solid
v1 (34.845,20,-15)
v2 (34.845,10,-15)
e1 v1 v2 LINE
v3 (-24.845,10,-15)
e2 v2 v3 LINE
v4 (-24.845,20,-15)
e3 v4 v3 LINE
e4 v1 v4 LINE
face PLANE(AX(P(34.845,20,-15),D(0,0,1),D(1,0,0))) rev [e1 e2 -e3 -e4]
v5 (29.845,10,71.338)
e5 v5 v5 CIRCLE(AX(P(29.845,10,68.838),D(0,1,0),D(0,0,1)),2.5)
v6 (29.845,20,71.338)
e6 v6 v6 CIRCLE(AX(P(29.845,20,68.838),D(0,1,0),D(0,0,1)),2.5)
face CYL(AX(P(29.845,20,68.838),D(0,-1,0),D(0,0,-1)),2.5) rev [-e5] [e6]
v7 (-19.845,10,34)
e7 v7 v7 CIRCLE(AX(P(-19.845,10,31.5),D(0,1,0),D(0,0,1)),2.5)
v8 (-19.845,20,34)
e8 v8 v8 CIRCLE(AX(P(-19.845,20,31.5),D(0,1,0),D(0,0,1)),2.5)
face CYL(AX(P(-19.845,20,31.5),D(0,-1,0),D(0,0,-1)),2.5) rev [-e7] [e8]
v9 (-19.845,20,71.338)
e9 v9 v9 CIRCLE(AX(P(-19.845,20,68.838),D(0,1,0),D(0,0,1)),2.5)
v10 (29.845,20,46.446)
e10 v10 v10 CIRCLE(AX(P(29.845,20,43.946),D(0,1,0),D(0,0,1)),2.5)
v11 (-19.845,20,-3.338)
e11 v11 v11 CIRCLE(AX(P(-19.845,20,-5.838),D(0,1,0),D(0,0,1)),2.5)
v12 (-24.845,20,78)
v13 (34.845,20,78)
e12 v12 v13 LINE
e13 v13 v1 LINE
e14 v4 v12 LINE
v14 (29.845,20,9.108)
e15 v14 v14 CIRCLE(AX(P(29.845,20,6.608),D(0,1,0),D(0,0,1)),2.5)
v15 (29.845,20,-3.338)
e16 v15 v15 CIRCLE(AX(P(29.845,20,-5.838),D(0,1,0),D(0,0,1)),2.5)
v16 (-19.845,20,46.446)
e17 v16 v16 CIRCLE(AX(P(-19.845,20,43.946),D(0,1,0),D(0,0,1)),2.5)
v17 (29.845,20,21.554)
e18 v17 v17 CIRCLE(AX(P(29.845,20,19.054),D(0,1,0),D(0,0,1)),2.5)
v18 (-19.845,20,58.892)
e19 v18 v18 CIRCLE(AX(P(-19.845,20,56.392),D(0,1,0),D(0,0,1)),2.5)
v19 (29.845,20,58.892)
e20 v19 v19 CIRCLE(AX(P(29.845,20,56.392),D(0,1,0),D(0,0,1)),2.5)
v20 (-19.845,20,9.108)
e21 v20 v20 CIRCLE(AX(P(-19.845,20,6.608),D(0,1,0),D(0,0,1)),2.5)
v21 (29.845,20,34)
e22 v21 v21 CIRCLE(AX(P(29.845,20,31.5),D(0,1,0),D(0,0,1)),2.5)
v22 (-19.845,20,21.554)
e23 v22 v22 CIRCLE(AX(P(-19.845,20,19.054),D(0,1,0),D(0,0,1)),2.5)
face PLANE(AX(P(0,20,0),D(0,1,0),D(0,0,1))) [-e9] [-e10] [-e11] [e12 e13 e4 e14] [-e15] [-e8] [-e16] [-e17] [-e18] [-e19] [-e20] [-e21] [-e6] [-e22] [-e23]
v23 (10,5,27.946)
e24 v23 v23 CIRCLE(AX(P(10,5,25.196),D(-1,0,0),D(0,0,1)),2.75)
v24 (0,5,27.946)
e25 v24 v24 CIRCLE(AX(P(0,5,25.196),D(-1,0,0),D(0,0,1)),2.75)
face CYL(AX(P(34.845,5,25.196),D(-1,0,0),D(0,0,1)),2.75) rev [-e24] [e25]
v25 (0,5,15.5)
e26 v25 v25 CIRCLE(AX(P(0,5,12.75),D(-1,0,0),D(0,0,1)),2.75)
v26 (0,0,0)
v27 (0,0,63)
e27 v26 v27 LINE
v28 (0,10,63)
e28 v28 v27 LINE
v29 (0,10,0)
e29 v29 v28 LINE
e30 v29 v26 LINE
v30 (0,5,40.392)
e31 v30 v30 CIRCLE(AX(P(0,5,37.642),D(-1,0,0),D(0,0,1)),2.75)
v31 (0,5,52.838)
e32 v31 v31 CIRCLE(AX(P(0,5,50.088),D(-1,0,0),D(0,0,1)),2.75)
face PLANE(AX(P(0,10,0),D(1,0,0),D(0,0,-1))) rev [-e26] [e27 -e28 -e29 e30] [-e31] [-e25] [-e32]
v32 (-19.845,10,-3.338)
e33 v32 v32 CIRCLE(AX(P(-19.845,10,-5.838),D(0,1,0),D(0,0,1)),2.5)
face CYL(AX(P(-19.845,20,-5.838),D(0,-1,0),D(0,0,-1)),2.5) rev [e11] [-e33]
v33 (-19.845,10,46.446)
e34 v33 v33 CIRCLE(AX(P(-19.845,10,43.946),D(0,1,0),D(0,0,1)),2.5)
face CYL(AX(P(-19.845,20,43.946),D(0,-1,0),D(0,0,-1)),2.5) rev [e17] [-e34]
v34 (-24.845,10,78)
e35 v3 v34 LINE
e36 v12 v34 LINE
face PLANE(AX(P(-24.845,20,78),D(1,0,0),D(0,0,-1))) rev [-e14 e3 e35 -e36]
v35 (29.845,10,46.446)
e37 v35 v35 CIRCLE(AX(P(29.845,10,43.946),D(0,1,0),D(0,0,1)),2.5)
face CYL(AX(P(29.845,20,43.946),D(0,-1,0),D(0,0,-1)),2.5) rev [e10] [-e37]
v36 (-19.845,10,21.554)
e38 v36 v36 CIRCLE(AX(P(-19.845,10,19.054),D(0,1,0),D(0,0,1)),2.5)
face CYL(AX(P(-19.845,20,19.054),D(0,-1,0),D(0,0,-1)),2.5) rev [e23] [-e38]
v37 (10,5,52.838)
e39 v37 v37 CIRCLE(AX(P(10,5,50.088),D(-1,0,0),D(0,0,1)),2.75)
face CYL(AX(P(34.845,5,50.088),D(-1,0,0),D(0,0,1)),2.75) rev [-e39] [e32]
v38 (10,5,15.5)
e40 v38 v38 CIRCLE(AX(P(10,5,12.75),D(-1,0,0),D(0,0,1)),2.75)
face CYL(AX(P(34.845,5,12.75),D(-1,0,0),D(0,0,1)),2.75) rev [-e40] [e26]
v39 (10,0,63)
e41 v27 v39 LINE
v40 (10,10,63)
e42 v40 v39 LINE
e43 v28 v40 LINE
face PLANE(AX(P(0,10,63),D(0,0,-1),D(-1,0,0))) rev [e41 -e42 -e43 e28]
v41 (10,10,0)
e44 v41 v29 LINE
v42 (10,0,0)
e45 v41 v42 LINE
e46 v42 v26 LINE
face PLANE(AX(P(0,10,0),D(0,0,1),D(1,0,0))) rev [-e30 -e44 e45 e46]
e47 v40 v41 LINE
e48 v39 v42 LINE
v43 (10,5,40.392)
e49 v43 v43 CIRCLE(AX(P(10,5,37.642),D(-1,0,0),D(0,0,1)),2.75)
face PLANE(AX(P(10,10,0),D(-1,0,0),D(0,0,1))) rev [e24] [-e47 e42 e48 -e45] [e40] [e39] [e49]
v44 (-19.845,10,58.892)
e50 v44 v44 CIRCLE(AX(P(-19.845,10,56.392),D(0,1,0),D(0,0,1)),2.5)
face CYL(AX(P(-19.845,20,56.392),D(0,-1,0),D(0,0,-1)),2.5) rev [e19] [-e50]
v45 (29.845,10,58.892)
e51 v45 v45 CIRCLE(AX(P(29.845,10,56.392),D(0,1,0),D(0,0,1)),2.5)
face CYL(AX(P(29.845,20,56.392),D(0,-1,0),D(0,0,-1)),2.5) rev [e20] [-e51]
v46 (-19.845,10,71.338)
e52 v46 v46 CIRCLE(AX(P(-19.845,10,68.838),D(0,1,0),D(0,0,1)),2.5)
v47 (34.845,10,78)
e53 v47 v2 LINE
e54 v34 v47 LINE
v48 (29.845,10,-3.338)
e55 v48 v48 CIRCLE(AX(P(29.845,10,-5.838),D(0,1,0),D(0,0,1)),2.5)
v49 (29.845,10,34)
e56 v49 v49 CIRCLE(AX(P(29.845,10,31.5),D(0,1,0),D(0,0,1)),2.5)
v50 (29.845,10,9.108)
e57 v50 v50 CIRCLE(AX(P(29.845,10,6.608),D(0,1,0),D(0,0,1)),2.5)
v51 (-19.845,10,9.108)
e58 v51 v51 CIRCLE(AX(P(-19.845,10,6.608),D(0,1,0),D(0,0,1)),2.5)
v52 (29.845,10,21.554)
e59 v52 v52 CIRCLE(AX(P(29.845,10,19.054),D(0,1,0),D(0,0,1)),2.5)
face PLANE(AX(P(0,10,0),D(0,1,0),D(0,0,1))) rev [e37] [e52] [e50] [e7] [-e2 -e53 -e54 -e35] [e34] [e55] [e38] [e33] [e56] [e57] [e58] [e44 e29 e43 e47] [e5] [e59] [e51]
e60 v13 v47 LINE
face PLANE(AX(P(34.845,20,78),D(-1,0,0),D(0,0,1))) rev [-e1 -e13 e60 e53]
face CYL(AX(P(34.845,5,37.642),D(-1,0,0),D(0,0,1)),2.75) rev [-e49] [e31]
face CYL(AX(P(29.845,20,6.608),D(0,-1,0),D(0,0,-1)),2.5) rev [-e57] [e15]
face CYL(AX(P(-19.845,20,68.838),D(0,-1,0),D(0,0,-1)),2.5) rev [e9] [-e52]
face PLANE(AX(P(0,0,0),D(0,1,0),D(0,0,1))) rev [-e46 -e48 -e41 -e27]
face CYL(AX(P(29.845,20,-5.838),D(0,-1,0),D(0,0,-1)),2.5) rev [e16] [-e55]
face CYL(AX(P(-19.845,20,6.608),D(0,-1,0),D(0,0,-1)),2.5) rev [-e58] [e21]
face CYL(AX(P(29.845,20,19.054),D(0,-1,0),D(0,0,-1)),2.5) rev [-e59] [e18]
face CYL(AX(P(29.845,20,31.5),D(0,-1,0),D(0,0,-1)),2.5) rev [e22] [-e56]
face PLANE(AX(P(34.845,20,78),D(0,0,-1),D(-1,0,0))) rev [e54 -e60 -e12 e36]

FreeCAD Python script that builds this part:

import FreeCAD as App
import Part
import Sketcher

V = App.Vector


def add_polygon(sketch, points):
    """Adds a closed chain of lines whose ends are joined by coincident constraints."""
    first, n = sketch.GeometryCount, len(points)
    for a, b in zip(points, points[1:] + points[:1]):
        sketch.addGeometry(Part.LineSegment(App.Vector(*a, 0), App.Vector(*b, 0)), False)
    for i in range(n):
        sketch.addConstraint(Sketcher.Constraint("Coincident", first + i, 2, first + (i + 1) % n, 1))

doc = App.newDocument("Part")
body = doc.addObject("PartDesign::Body", "Body")

# Sketch on XZ plane
sketch1 = body.newObject("Sketcher::SketchObject", "Sketch")
sketch1.AttachmentSupport = (doc.getObject("XZ_Plane"), [""])
sketch1.MapMode = "FlatFace"
add_polygon(sketch1, [(0, 0), (0, 63), (10, 63), (10, 0)])  # lines 0-3
sketch1.addConstraint([
    Sketcher.Constraint("Vertical", 0),
    Sketcher.Constraint("Horizontal", 1),
    Sketcher.Constraint("Vertical", 2),
    Sketcher.Constraint("Horizontal", 3),
    Sketcher.Constraint("Coincident", 3, 2, -1, 1),
    Sketcher.Constraint("DistanceX", 1, 1, 1, 2, 10.0),
    Sketcher.Constraint("DistanceY", 0, 1, 0, 2, 63.0),
])
pad1 = body.newObject("PartDesign::Pad", "Pad")
pad1.Profile = sketch1
pad1.Length = 10
pad1.Reversed = True

# Sketch on XZ plane
sketch2 = body.newObject("Sketcher::SketchObject", "Sketch001")
sketch2.AttachmentSupport = (doc.getObject("XZ_Plane"), [""])
sketch2.MapMode = "FlatFace"
sketch2.AttachmentOffset = App.Placement(V(0, 0, -10), App.Rotation())
add_polygon(sketch2, [(-24.8, -15), (-24.8, 78), (34.8, 78), (34.8, -15)])  # lines 0-3
sketch2.addGeometry(Part.Circle(V(-19.8, 68.8, 0), V(0, 0, 1), 2.5), False)  # 4
sketch2.addGeometry(Part.Circle(V(-19.8, 56.4, 0), V(0, 0, 1), 2.5), False)  # 5
sketch2.addGeometry(Part.Circle(V(-19.8, 43.9, 0), V(0, 0, 1), 2.5), False)  # 6
sketch2.addGeometry(Part.Circle(V(29.8, 68.8, 0), V(0, 0, 1), 2.5), False)  # 7
sketch2.addGeometry(Part.Circle(V(29.8, 56.4, 0), V(0, 0, 1), 2.5), False)  # 8
sketch2.addGeometry(Part.Circle(V(29.8, 43.9, 0), V(0, 0, 1), 2.5), False)  # 9
sketch2.addGeometry(Part.Circle(V(-19.8, 31.5, 0), V(0, 0, 1), 2.5), False)  # 10
sketch2.addGeometry(Part.Circle(V(-19.8, 19.1, 0), V(0, 0, 1), 2.5), False)  # 11
sketch2.addGeometry(Part.Circle(V(-19.8, 6.6, 0), V(0, 0, 1), 2.5), False)  # 12
sketch2.addGeometry(Part.Circle(V(-19.8, -5.8, 0), V(0, 0, 1), 2.5), False)  # 13
sketch2.addGeometry(Part.Circle(V(29.8, 31.5, 0), V(0, 0, 1), 2.5), False)  # 14
sketch2.addGeometry(Part.Circle(V(29.8, 19.1, 0), V(0, 0, 1), 2.5), False)  # 15
sketch2.addGeometry(Part.Circle(V(29.8, 6.6, 0), V(0, 0, 1), 2.5), False)  # 16
sketch2.addGeometry(Part.Circle(V(29.8, -5.8, 0), V(0, 0, 1), 2.5), False)  # 17
sketch2.addConstraint([
    Sketcher.Constraint("Vertical", 0),
    Sketcher.Constraint("Horizontal", 1),
    Sketcher.Constraint("Vertical", 2),
    Sketcher.Constraint("Horizontal", 3),
    Sketcher.Constraint("Equal", 4, 5),
    Sketcher.Constraint("Equal", 5, 6),
    Sketcher.Constraint("Equal", 6, 7),
    Sketcher.Constraint("Equal", 7, 8),
    Sketcher.Constraint("Equal", 8, 9),
    Sketcher.Constraint("Equal", 9, 10),
    Sketcher.Constraint("Equal", 10, 11),
    Sketcher.Constraint("Equal", 11, 12),
    Sketcher.Constraint("Equal", 12, 13),
    Sketcher.Constraint("Equal", 13, 14),
    Sketcher.Constraint("Equal", 14, 15),
    Sketcher.Constraint("Equal", 15, 16),
    Sketcher.Constraint("Equal", 16, 17),
    Sketcher.Constraint("Horizontal", 4, 3, 7, 3),
    Sketcher.Constraint("Horizontal", 5, 3, 8, 3),
    Sketcher.Constraint("Horizontal", 6, 3, 9, 3),
    Sketcher.Constraint("Horizontal", 10, 3, 14, 3),
    Sketcher.Constraint("Horizontal", 11, 3, 15, 3),
    Sketcher.Constraint("Horizontal", 12, 3, 16, 3),
    Sketcher.Constraint("Horizontal", 13, 3, 17, 3),
    Sketcher.Constraint("Vertical", 4, 3, 5, 3),
    Sketcher.Constraint("Vertical", 5, 3, 6, 3),
    Sketcher.Constraint("Vertical", 7, 3, 8, 3),
    Sketcher.Constraint("Vertical", 8, 3, 9, 3),
    Sketcher.Constraint("Vertical", 6, 3, 10, 3),
    Sketcher.Constraint("Vertical", 10, 3, 11, 3),
    Sketcher.Constraint("Vertical", 11, 3, 12, 3),
    Sketcher.Constraint("Vertical", 12, 3, 13, 3),
    Sketcher.Constraint("Vertical", 9, 3, 14, 3),
    Sketcher.Constraint("Vertical", 14, 3, 15, 3),
    Sketcher.Constraint("Vertical", 15, 3, 16, 3),
    Sketcher.Constraint("Vertical", 16, 3, 17, 3),
    Sketcher.Constraint("Diameter", 4, 5.0),
    Sketcher.Constraint("DistanceY", 0, 1, 0, 2, 93.0),
    Sketcher.Constraint("DistanceY", -1, 1, 0, 2, 78.0),
    Sketcher.Constraint("DistanceX", 0, 2, 4, 3, 5.0),
    Sketcher.Constraint("DistanceX", 7, 3, 1, 2, 5.0),
    Sketcher.Constraint("DistanceX", 1, 1, 1, 2, 59.69),
    Sketcher.Constraint("DistanceY", -1, 1, 10, 3, 31.5),
    Sketcher.Constraint("DistanceY", 13, 3, 5, 3, 62.23),
    Sketcher.Constraint("DistanceX", 4, 3, -1, 1, 19.845),
    Sketcher.Constraint("DistanceY", -1, 1, 4, 3, 68.838),
    Sketcher.Constraint("DistanceY", -1, 1, 5, 3, 56.392),
    Sketcher.Constraint("DistanceY", -1, 1, 6, 3, 43.946),
    Sketcher.Constraint("DistanceY", -1, 1, 11, 3, 19.054),
    Sketcher.Constraint("DistanceY", -1, 1, 12, 3, 6.608),
])
pad2 = body.newObject("PartDesign::Pad", "Pad001")
pad2.Profile = sketch2
pad2.Length = 10
pad2.Reversed = True

# Sketch on YZ plane
sketch3 = body.newObject("Sketcher::SketchObject", "Sketch002")
sketch3.AttachmentSupport = (doc.getObject("YZ_Plane"), [""])
sketch3.MapMode = "FlatFace"
sketch3.addGeometry([
    Part.Circle(V(5, 12.8, 0), V(0, 0, 1), 2.8),
    Part.Circle(V(5, 25.2, 0), V(0, 0, 1), 2.8),
    Part.Circle(V(5, 37.6, 0), V(0, 0, 1), 2.8),
    Part.Circle(V(5, 50.1, 0), V(0, 0, 1), 2.8),
], False)
sketch3.addConstraint([
    Sketcher.Constraint("Equal", 0, 1),
    Sketcher.Constraint("Equal", 1, 2),
    Sketcher.Constraint("Equal", 2, 3),
    Sketcher.Constraint("Vertical", 0, 3, 1, 3),
    Sketcher.Constraint("Vertical", 1, 3, 2, 3),
    Sketcher.Constraint("Vertical", 2, 3, 3, 3),
    Sketcher.Constraint("Diameter", 0, 5.5),
    Sketcher.Constraint("DistanceX", -1, 1, 0, 3, 5.0),
    Sketcher.Constraint("DistanceY", -1, 1, 0, 3, 12.75),
    Sketcher.Constraint("DistanceY", -1, 1, 1, 3, 25.196),
    Sketcher.Constraint("DistanceY", -1, 1, 2, 3, 37.642),
    Sketcher.Constraint("DistanceY", -1, 1, 3, 3, 50.088),
])
pocket1 = body.newObject("PartDesign::Pocket", "Pocket")
pocket1.Profile = sketch3
pocket1.Type = "ThroughAll"
pocket1.Reversed = True

doc.recompute()
